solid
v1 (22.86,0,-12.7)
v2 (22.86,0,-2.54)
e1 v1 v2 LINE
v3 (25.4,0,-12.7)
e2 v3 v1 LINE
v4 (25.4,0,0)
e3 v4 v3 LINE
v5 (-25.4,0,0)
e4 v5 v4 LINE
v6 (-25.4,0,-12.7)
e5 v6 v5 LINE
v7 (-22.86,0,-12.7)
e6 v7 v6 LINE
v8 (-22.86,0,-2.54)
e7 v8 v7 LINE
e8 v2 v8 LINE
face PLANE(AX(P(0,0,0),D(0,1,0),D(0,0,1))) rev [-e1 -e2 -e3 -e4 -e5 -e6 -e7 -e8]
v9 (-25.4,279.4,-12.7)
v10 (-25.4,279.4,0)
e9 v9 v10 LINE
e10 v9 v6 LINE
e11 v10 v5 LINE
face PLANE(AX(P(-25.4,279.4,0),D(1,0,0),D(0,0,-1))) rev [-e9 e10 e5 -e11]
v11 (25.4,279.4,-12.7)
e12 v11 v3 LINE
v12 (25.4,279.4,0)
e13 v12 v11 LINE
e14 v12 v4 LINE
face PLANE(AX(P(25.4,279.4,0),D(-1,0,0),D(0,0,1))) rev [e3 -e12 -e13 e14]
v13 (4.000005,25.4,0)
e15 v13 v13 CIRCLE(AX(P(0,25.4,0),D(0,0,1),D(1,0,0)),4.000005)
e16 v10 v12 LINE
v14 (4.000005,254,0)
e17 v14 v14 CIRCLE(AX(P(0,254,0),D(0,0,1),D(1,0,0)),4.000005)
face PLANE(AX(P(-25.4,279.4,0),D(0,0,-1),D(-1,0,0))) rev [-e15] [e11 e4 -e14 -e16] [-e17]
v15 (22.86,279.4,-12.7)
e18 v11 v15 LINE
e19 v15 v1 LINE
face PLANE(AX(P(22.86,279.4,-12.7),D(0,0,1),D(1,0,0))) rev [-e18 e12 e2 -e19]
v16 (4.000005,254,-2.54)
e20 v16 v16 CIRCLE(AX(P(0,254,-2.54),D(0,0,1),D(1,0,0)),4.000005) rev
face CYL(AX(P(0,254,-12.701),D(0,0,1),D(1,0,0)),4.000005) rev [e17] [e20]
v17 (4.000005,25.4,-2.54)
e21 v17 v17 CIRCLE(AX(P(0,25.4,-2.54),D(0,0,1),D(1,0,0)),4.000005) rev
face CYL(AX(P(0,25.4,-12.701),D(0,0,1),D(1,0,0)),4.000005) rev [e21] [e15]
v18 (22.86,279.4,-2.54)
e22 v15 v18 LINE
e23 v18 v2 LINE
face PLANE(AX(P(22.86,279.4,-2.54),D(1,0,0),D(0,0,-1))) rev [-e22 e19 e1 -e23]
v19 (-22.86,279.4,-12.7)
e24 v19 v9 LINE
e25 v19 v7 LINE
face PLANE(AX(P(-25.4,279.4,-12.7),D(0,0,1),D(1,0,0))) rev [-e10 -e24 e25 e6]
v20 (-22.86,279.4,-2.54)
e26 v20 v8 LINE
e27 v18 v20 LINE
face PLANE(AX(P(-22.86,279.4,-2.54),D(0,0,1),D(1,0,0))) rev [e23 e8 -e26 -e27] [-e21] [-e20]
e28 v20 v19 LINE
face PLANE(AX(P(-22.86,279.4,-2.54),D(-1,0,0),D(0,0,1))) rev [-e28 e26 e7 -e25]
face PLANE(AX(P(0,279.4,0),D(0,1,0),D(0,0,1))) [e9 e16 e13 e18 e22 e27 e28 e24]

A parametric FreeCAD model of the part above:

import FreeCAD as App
import Part
import Sketcher
Q = App.Units.Quantity

doc = App.newDocument("Part")
body = doc.addObject("PartDesign::Body", "Body")

sketch1 = body.newObject("Sketcher::SketchObject", "Sketch")
sketch1.AttachmentSupport = (doc.getObject("XZ_Plane"), [""])
sketch1.MapMode = "FlatFace"
sketch1.addGeometry([
    Part.LineSegment(App.Vector(-22.86, -2.54, 0), App.Vector(-22.86, -12.7, 0)),
    Part.LineSegment(App.Vector(-22.86, -12.7, 0), App.Vector(-25.4, -12.7, 0)),
    Part.LineSegment(App.Vector(-25.4, -12.7, 0), App.Vector(-25.4, 0, 0)),
    Part.LineSegment(App.Vector(-25.4, 0, 0), App.Vector(25.4, 0, 0)),
    Part.LineSegment(App.Vector(25.4, 0, 0), App.Vector(25.4, -12.7, 0)),
    Part.LineSegment(App.Vector(25.4, -12.7, 0), App.Vector(22.86, -12.7, 0)),
    Part.LineSegment(App.Vector(22.86, -12.7, 0), App.Vector(22.86, -2.54, 0)),
    Part.LineSegment(App.Vector(22.86, -2.54, 0), App.Vector(-22.86, -2.54, 0)),
], False)
sketch1.addConstraint([
    Sketcher.Constraint("Coincident", 0, 2, 1, 1),
    Sketcher.Constraint("Coincident", 1, 2, 2, 1),
    Sketcher.Constraint("Coincident", 2, 2, 3, 1),
    Sketcher.Constraint("Coincident", 3, 2, 4, 1),
    Sketcher.Constraint("Coincident", 4, 2, 5, 1),
    Sketcher.Constraint("Coincident", 5, 2, 6, 1),
    Sketcher.Constraint("Coincident", 6, 2, 7, 1),
    Sketcher.Constraint("Coincident", 7, 2, 0, 1),
    Sketcher.Constraint("Vertical", 0),
    Sketcher.Constraint("Horizontal", 1),
    Sketcher.Constraint("Vertical", 2),
    Sketcher.Constraint("Horizontal", 3),
    Sketcher.Constraint("Vertical", 4),
    Sketcher.Constraint("Horizontal", 5),
    Sketcher.Constraint("Vertical", 6),
    Sketcher.Constraint("Horizontal", 7),
    Sketcher.Constraint("Symmetric", 2, 2, 3, 2, -1, 1),
    Sketcher.Constraint("Symmetric", 0, 2, 5, 2, -2),
    Sketcher.Constraint("DistanceX", 3, 1, 3, 2, Q("2 in")),
    Sketcher.Constraint("DistanceX", 1, 2, 1, 1, Q("0.1 in")),
    Sketcher.Constraint("DistanceY", 0, 2, 0, 1, Q("0.4 in")),
    Sketcher.Constraint("DistanceY", 2, 1, 2, 2, Q("0.5 in")),
])
pad1 = body.newObject("PartDesign::Pad", "Pad")
pad1.Profile = sketch1
pad1.Length = Q("11 in")
pad1.Reversed = True

sketch2 = body.newObject("Sketcher::SketchObject", "Sketch001")
sketch2.AttachmentSupport = (doc.getObject("XY_Plane"), [""])
sketch2.MapMode = "FlatFace"
sketch2.addGeometry(Part.Circle(App.Vector(0, 25.4, 0), App.Vector(0, 0, 1), 4.000005), False)
sketch2.addConstraint([
    Sketcher.Constraint("PointOnObject", 0, 3, -2),
    Sketcher.Constraint("DistanceY", -1, 1, 0, 3, Q("1 in")),
    Sketcher.Constraint("Diameter", 0, Q("8.000009 mm")),
])
pocket1 = body.newObject("PartDesign::Pocket", "Pocket")
pocket1.Profile = sketch2
pocket1.Type = "UpToFirst"

sketch3 = body.newObject("Sketcher::SketchObject", "Sketch002")
sketch3.AttachmentSupport = (doc.getObject("XY_Plane"), [""])
sketch3.MapMode = "FlatFace"
sketch3.addGeometry(Part.Circle(App.Vector(0, 254, 0), App.Vector(0, 0, 1), 4.000005), False)
sketch3.addConstraint([
    Sketcher.Constraint("PointOnObject", 0, 3, -2),
    Sketcher.Constraint("DistanceY", -1, 1, 0, 3, Q("10 in")),
    Sketcher.Constraint("Diameter", 0, Q("8.000009 mm")),
])
pocket2 = body.newObject("PartDesign::Pocket", "Pocket001")
pocket2.Profile = sketch3
pocket2.Type = "UpToFirst"

doc.recompute()
